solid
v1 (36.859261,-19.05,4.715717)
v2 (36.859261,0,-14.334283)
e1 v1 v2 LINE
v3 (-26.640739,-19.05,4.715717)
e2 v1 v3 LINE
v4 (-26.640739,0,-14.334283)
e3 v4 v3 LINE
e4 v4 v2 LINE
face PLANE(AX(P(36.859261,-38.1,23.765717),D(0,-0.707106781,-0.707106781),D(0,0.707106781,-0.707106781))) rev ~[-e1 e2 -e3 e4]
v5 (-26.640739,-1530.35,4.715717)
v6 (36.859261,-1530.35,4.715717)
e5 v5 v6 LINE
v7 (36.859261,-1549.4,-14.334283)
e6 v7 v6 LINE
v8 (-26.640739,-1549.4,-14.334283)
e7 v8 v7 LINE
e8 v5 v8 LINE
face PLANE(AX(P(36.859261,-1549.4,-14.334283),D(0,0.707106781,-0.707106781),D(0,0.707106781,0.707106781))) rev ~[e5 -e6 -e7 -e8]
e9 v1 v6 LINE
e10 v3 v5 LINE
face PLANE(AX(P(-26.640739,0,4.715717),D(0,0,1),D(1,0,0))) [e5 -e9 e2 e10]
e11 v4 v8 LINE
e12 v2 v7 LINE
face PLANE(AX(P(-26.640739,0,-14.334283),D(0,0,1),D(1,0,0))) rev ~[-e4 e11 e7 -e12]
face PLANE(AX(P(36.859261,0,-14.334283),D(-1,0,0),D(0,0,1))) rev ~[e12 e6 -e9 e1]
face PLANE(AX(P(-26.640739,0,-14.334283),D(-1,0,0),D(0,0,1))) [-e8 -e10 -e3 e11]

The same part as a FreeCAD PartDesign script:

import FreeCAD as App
import Part
import Sketcher
from FreeCAD import Vector
Q = App.Units.Quantity

doc = App.newDocument("Part")
body = doc.addObject("PartDesign::Body", "Body")

sketch1 = body.newObject("Sketcher::SketchObject", "Sketch")
sketch1.AttachmentSupport = (doc.getObject("XZ_Plane"), [""])
sketch1.MapMode = "FlatFace"
sketch1.addGeometry([
    Part.LineSegment(Vector(-27, 24, 0), Vector(-27, -14, 0)),
    Part.LineSegment(Vector(-27, -14, 0), Vector(37, -14, 0)),
    Part.LineSegment(Vector(37, -14, 0), Vector(37, 24, 0)),
    Part.LineSegment(Vector(37, 24, 0), Vector(-27, 24, 0)),
], False)
sketch1.addConstraint([
    Sketcher.Constraint("Coincident", 0, 2, 1, 1),
    Sketcher.Constraint("Coincident", 1, 2, 2, 1),
    Sketcher.Constraint("Coincident", 2, 2, 3, 1),
    Sketcher.Constraint("Coincident", 3, 2, 0, 1),
    Sketcher.Constraint("Vertical", 0),
    Sketcher.Constraint("Horizontal", 1),
    Sketcher.Constraint("Vertical", 2),
    Sketcher.Constraint("Horizontal", 3),
    Sketcher.Constraint("DistanceX", 1, 1, 1, 2, Q("2.5 in")),
    Sketcher.Constraint("DistanceY", 0, 2, 0, 1, Q("1.5 in")),
    Sketcher.Constraint("DistanceX", 0, 2, -1, 1, Q("26.640739 mm")),
    Sketcher.Constraint("DistanceY", 0, 2, -1, 1, Q("14.334283 mm")),
])
pad1 = body.newObject("PartDesign::Pad", "Pad")
pad1.Profile = sketch1
pad1.Length = Q("61 in")

sketch2 = body.newObject("Sketcher::SketchObject", "Sketch001")
sketch2.AttachmentSupport = (doc.getObject("YZ_Plane"), [""])
sketch2.MapMode = "FlatFace"
sketch2.AttachmentOffset = App.Placement(Vector(0, 0, 36.859261), App.Rotation())
sketch2.addGeometry([
    Part.LineSegment(Vector(-1549, 24, 0), Vector(-1549, -14, 0)),
    Part.LineSegment(Vector(-1549, -14, 0), Vector(-1511, 24, 0)),
    Part.LineSegment(Vector(-1511, 24, 0), Vector(-1549, 24, 0)),
    Part.LineSegment(Vector(-38, 24, 0), Vector(0, -14, 0)),
    Part.LineSegment(Vector(0, -14, 0), Vector(0, 24, 0)),
    Part.LineSegment(Vector(0, 24, 0), Vector(-38, 24, 0)),
], False)
sketch2.addConstraint([
    Sketcher.Constraint("Coincident", 0, 2, 1, 1),
    Sketcher.Constraint("Coincident", 1, 2, 2, 1),
    Sketcher.Constraint("Coincident", 2, 2, 0, 1),
    Sketcher.Constraint("Coincident", 3, 2, 4, 1),
    Sketcher.Constraint("Coincident", 4, 2, 5, 1),
    Sketcher.Constraint("Coincident", 5, 2, 3, 1),
    Sketcher.Constraint("Vertical", 0),
    Sketcher.Constraint("Horizontal", 2),
    Sketcher.Constraint("Vertical", 4),
    Sketcher.Constraint("Horizontal", 5),
    Sketcher.Constraint("PointOnObject", 3, 2, -2),
    Sketcher.Constraint("Perpendicular", 1, 3),
    Sketcher.Constraint("Horizontal", 0, 2, 3, 2),
    Sketcher.Constraint("Horizontal", 2, 2, 4, 2),
    Sketcher.Constraint("Equal", 2, 5),
    Sketcher.Constraint("DistanceX", 2, 2, 2, 1, Q("1.5 in")),
    Sketcher.Constraint("DistanceX", 0, 2, -1, 1, Q("61 in")),
    Sketcher.Constraint("DistanceY", 0, 2, -1, 1, Q("14.334283 mm")),
])
pocket1 = body.newObject("PartDesign::Pocket", "Pocket")
pocket1.Profile = sketch2
pocket1.Length = Q("3 in")

sketch3 = body.newObject("Sketcher::SketchObject", "Sketch002")
sketch3.AttachmentSupport = (doc.getObject("XZ_Plane"), [""])
sketch3.MapMode = "FlatFace"
sketch3.addGeometry([
    Part.LineSegment(Vector(-27, 24, 0), Vector(-27, 5, 0)),
    Part.LineSegment(Vector(-27, 5, 0), Vector(37, 5, 0)),
    Part.LineSegment(Vector(37, 5, 0), Vector(37, 24, 0)),
    Part.LineSegment(Vector(37, 24, 0), Vector(-27, 24, 0)),
], False)
sketch3.addConstraint([
    Sketcher.Constraint("Coincident", 0, 2, 1, 1),
    Sketcher.Constraint("Coincident", 1, 2, 2, 1),
    Sketcher.Constraint("Coincident", 2, 2, 3, 1),
    Sketcher.Constraint("Coincident", 3, 2, 0, 1),
    Sketcher.Constraint("Vertical", 0),
    Sketcher.Constraint("Horizontal", 1),
    Sketcher.Constraint("Vertical", 2),
    Sketcher.Constraint("Horizontal", 3),
    Sketcher.Constraint("DistanceX", 1, 1, 1, 2, Q("2.5 in")),
    Sketcher.Constraint("DistanceY", 0, 2, 0, 1, Q("0.75 in")),
    Sketcher.Constraint("DistanceX", 0, 2, -1, 1, Q("26.640739 mm")),
    Sketcher.Constraint("DistanceY", -1, 1, 0, 2, Q("4.715717 mm")),
])
pocket2 = body.newObject("PartDesign::Pocket", "Pocket001")
pocket2.Profile = sketch3
pocket2.Type = "ThroughAll"
pocket2.Reversed = True

doc.recompute()
